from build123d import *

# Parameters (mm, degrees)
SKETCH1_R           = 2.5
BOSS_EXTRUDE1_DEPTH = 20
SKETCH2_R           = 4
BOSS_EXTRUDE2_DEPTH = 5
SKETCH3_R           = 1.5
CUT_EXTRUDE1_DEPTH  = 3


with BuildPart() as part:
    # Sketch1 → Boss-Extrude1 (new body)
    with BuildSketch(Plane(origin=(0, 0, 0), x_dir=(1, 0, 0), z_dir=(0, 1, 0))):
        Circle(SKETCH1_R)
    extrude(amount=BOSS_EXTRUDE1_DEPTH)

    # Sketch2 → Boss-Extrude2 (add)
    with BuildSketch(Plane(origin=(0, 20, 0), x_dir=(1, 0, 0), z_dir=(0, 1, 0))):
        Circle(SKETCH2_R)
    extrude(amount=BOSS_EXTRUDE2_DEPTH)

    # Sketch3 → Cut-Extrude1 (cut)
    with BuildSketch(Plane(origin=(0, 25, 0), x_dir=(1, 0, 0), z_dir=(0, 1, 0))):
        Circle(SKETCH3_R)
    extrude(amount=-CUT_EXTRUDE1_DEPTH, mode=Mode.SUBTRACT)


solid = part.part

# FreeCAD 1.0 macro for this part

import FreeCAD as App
import Part
import Sketcher
from FreeCAD import Vector

doc = App.newDocument("Part")
body = doc.addObject("PartDesign::Body", "Body")

# Sketch on XZ plane
sketch1 = body.newObject("Sketcher::SketchObject", "Sketch")
sketch1.AttachmentSupport = (doc.getObject("XZ_Plane"), [""])
sketch1.MapMode = "FlatFace"
sketch1.addGeometry(Part.Circle(Vector(0, 0, 0), Vector(0, 0, 1), 2.5), False)
sketch1.addConstraint([
    Sketcher.Constraint("Coincident", 0, 3, -1, 1),
    Sketcher.Constraint("Diameter", 0, 5.0),
])
pad1 = body.newObject("PartDesign::Pad", "Pad")
pad1.Profile = sketch1
pad1.Length = 20
pad1.Reversed = True

# Sketch on XZ plane
sketch2 = body.newObject("Sketcher::SketchObject", "Sketch001")
sketch2.AttachmentSupport = (doc.getObject("XZ_Plane"), [""])
sketch2.MapMode = "FlatFace"
sketch2.AttachmentOffset = App.Placement(Vector(0, 0, -20), App.Rotation())
sketch2.addGeometry(Part.Circle(Vector(0, 0, 0), Vector(0, 0, 1), 4), False)
sketch2.addConstraint([
    Sketcher.Constraint("Coincident", 0, 3, -1, 1),
    Sketcher.Constraint("Diameter", 0, 8.0),
])
pad2 = body.newObject("PartDesign::Pad", "Pad001")
pad2.Profile = sketch2
pad2.Length = 5
pad2.Reversed = True

# Sketch on XZ plane
sketch3 = body.newObject("Sketcher::SketchObject", "Sketch002")
sketch3.AttachmentSupport = (doc.getObject("XZ_Plane"), [""])
sketch3.MapMode = "FlatFace"
sketch3.AttachmentOffset = App.Placement(Vector(0, 0, -25), App.Rotation())
sketch3.addGeometry(Part.Circle(Vector(0, 0, 0), Vector(0, 0, 1), 1.5), False)
sketch3.addConstraint([
    Sketcher.Constraint("Coincident", 0, 3, -1, 1),
    Sketcher.Constraint("Diameter", 0, 3.0),
])
pocket1 = body.newObject("PartDesign::Pocket", "Pocket")
pocket1.Profile = sketch3
pocket1.Length = 3
pocket1.Reversed = True

doc.recompute()
